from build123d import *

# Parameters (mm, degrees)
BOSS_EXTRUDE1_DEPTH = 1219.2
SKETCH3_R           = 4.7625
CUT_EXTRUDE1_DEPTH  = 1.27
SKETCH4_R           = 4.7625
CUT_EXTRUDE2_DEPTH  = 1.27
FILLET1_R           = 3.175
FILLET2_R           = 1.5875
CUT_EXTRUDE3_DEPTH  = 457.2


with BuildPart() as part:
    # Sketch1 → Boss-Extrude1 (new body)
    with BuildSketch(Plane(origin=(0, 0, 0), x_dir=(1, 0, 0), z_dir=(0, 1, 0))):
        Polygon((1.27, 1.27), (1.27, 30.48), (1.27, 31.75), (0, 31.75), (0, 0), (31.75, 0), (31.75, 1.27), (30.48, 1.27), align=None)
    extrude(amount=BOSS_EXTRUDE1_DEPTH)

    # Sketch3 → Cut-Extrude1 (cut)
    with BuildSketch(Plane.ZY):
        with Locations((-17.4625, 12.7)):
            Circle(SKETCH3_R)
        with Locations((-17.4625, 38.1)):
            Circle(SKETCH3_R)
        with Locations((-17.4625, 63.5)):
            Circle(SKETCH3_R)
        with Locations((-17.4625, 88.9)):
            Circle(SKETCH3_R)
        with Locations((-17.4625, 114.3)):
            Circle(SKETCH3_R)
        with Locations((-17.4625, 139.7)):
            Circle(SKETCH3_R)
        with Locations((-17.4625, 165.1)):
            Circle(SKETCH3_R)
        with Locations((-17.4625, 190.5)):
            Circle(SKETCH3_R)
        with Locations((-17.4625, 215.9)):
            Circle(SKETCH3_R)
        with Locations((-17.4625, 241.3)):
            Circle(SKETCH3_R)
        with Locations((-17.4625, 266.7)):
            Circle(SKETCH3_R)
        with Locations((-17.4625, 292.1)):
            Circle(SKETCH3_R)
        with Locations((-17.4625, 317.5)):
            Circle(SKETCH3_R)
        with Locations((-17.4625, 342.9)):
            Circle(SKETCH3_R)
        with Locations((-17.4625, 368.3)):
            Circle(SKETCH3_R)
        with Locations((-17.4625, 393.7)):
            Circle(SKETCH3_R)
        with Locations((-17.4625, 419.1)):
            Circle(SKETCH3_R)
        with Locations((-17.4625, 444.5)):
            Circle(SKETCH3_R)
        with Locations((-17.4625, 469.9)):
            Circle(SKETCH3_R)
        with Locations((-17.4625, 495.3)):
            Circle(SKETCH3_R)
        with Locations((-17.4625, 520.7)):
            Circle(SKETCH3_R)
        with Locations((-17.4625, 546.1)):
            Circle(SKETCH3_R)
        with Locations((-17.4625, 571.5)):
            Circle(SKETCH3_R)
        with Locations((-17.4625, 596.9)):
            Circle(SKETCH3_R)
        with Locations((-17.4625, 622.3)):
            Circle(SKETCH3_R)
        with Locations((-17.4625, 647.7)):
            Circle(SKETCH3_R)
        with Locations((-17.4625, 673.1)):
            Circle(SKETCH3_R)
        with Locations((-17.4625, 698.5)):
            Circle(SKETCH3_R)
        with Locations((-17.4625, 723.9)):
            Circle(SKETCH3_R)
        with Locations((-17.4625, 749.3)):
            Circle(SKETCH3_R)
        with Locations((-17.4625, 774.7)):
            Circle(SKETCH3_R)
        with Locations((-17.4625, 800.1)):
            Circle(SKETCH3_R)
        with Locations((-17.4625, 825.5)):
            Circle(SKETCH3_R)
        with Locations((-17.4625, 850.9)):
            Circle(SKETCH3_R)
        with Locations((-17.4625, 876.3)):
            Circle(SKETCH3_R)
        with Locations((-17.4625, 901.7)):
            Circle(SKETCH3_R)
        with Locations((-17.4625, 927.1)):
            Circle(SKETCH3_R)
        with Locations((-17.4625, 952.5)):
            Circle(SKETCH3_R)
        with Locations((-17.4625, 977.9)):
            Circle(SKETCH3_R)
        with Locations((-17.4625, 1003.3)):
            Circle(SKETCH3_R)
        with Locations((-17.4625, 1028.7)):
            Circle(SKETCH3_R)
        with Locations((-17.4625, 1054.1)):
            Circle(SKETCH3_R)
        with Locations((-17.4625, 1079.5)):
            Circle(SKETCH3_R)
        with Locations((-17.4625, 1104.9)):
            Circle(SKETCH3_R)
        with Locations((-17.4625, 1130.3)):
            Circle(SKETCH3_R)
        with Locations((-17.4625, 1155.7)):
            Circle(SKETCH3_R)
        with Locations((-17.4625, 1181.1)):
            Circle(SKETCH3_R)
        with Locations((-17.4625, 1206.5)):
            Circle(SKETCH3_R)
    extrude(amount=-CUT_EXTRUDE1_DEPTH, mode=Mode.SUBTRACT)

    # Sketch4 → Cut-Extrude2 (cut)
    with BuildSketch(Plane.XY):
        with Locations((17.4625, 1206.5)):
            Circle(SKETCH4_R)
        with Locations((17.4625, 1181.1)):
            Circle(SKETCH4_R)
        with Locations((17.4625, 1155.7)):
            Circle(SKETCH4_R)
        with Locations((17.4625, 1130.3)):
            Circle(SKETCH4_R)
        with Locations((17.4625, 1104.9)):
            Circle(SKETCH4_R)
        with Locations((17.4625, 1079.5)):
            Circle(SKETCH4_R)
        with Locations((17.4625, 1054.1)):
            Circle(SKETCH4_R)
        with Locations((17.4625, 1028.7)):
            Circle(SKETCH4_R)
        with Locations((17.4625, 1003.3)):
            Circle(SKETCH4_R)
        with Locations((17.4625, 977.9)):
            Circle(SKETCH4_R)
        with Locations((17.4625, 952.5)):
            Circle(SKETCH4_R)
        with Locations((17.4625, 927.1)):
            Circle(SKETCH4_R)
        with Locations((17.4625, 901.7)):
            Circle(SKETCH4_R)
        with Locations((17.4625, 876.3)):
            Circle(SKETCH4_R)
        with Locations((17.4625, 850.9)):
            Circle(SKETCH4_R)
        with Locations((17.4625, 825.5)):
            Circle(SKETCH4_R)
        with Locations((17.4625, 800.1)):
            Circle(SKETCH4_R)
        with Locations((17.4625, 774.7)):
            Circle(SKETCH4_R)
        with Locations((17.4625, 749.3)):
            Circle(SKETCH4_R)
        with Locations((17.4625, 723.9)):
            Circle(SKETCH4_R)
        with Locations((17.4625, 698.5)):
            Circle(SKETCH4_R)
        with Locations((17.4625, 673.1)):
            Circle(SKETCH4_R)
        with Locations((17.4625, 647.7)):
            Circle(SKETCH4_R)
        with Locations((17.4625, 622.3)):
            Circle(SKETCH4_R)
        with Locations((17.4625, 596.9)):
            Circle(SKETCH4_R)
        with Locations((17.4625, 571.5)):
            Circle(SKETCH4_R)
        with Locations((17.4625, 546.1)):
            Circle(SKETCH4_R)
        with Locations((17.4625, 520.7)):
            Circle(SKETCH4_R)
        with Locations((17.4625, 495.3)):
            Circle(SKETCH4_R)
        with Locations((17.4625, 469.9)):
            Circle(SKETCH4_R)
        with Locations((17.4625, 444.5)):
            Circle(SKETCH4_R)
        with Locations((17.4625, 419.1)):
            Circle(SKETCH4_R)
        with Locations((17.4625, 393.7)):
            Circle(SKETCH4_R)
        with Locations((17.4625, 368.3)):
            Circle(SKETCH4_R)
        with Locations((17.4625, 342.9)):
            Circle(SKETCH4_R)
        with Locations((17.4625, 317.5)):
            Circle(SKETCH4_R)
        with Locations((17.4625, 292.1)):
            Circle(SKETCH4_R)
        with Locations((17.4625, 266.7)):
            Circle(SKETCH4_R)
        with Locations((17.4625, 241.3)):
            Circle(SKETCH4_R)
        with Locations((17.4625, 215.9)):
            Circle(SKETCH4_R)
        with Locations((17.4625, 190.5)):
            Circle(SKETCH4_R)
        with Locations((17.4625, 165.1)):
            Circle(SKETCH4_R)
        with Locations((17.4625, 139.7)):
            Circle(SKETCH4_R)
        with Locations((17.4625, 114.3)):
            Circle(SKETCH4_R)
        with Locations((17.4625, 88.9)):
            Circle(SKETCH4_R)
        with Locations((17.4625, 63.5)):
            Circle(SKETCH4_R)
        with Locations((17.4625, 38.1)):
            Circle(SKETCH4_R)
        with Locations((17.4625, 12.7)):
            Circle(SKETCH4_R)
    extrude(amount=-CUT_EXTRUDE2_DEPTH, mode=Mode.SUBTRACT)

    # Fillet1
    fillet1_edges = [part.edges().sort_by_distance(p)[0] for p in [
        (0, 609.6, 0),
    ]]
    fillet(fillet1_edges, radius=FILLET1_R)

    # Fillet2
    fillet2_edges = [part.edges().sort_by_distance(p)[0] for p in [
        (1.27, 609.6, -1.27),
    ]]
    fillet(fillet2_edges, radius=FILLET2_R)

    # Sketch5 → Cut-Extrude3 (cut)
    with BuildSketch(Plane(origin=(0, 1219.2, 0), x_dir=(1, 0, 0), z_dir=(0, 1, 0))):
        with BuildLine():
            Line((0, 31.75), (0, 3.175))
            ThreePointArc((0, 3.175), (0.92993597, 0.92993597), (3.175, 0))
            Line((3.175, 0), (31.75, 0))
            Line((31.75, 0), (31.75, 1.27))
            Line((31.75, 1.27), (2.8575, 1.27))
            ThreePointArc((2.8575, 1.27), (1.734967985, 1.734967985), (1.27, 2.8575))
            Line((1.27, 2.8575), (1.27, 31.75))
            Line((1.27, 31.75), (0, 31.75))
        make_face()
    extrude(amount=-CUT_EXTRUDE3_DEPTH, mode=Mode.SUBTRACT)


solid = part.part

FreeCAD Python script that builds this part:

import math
import FreeCAD as App
import Part
import Sketcher

V = App.Vector
Q = App.Units.Quantity


def edges_at(feature, points):
    """Names of the edges that pass closest to the given points."""
    edges = feature.Shape.Edges
    near = lambda p: min(range(len(edges)), key=lambda i: edges[i].distToShape(Part.Vertex(*p))[0])
    return sorted({f"Edge{near(p) + 1}" for p in points})

doc = App.newDocument("Part")
body = doc.addObject("PartDesign::Body", "Body")

sketch1 = body.newObject("Sketcher::SketchObject", "Sketch")
sketch1.AttachmentSupport = (doc.getObject("XZ_Plane"), [""])
sketch1.MapMode = "FlatFace"
sketch1.addGeometry([
    Part.LineSegment(V(1.27, -1.27, 0), V(1.27, -31.75, 0)),
    Part.LineSegment(V(1.27, -31.75, 0), V(0, -31.75, 0)),
    Part.LineSegment(V(0, -31.75, 0), V(0, 0, 0)),
    Part.LineSegment(V(0, 0, 0), V(31.75, 0, 0)),
    Part.LineSegment(V(31.75, 0, 0), V(31.75, -1.27, 0)),
    Part.LineSegment(V(31.75, -1.27, 0), V(1.27, -1.27, 0)),
], False)
sketch1.addConstraint([
    Sketcher.Constraint("Coincident", 0, 2, 1, 1),
    Sketcher.Constraint("Coincident", 1, 2, 2, 1),
    Sketcher.Constraint("Coincident", 2, 2, 3, 1),
    Sketcher.Constraint("Coincident", 3, 2, 4, 1),
    Sketcher.Constraint("Coincident", 4, 2, 5, 1),
    Sketcher.Constraint("Coincident", 5, 2, 0, 1),
    Sketcher.Constraint("Vertical", 0),
    Sketcher.Constraint("Horizontal", 1),
    Sketcher.Constraint("Vertical", 2),
    Sketcher.Constraint("Horizontal", 3),
    Sketcher.Constraint("Vertical", 4),
    Sketcher.Constraint("Horizontal", 5),
    Sketcher.Constraint("Coincident", 2, 2, -1, 1),
    Sketcher.Constraint("Equal", 5, 0),
    Sketcher.Constraint("Equal", 3, 2),
    Sketcher.Constraint("DistanceX", 5, 2, 5, 1, Q("1.2 in")),
    Sketcher.Constraint("DistanceX", 1, 2, 1, 1, Q("0.05 in")),
])
pad1 = body.newObject("PartDesign::Pad", "Pad")
pad1.Profile = sketch1
pad1.Length = Q("48 in")
pad1.Reversed = True

sketch2 = body.newObject("Sketcher::SketchObject", "Sketch001")
sketch2.AttachmentSupport = (doc.getObject("YZ_Plane"), [""])
sketch2.MapMode = "FlatFace"
sketch2.addGeometry([
    Part.Circle(V(12.7, -17.4625, 0), V(0, 0, 1), 4.7625),
    Part.Circle(V(38.1, -17.4625, 0), V(0, 0, 1), 4.7625),
    Part.Circle(V(63.5, -17.4625, 0), V(0, 0, 1), 4.7625),
    Part.Circle(V(88.9, -17.4625, 0), V(0, 0, 1), 4.7625),
    Part.Circle(V(114.3, -17.4625, 0), V(0, 0, 1), 4.7625),
    Part.Circle(V(139.7, -17.4625, 0), V(0, 0, 1), 4.7625),
    Part.Circle(V(165.1, -17.4625, 0), V(0, 0, 1), 4.7625),
    Part.Circle(V(190.5, -17.4625, 0), V(0, 0, 1), 4.7625),
    Part.Circle(V(215.9, -17.4625, 0), V(0, 0, 1), 4.7625),
    Part.Circle(V(241.3, -17.4625, 0), V(0, 0, 1), 4.7625),
    Part.Circle(V(266.7, -17.4625, 0), V(0, 0, 1), 4.7625),
    Part.Circle(V(292.1, -17.4625, 0), V(0, 0, 1), 4.7625),
    Part.Circle(V(317.5, -17.4625, 0), V(0, 0, 1), 4.7625),
    Part.Circle(V(342.9, -17.4625, 0), V(0, 0, 1), 4.7625),
    Part.Circle(V(368.3, -17.4625, 0), V(0, 0, 1), 4.7625),
    Part.Circle(V(393.7, -17.4625, 0), V(0, 0, 1), 4.7625),
    Part.Circle(V(419.1, -17.4625, 0), V(0, 0, 1), 4.7625),
    Part.Circle(V(444.5, -17.4625, 0), V(0, 0, 1), 4.7625),
    Part.Circle(V(469.9, -17.4625, 0), V(0, 0, 1), 4.7625),
    Part.Circle(V(495.3, -17.4625, 0), V(0, 0, 1), 4.7625),
    Part.Circle(V(520.7, -17.4625, 0), V(0, 0, 1), 4.7625),
    Part.Circle(V(546.1, -17.4625, 0), V(0, 0, 1), 4.7625),
    Part.Circle(V(571.5, -17.4625, 0), V(0, 0, 1), 4.7625),
    Part.Circle(V(596.9, -17.4625, 0), V(0, 0, 1), 4.7625),
    Part.Circle(V(622.3, -17.4625, 0), V(0, 0, 1), 4.7625),
    Part.Circle(V(647.7, -17.4625, 0), V(0, 0, 1), 4.7625),
    Part.Circle(V(673.1, -17.4625, 0), V(0, 0, 1), 4.7625),
    Part.Circle(V(698.5, -17.4625, 0), V(0, 0, 1), 4.7625),
    Part.Circle(V(723.9, -17.4625, 0), V(0, 0, 1), 4.7625),
    Part.Circle(V(749.3, -17.4625, 0), V(0, 0, 1), 4.7625),
    Part.Circle(V(774.7, -17.4625, 0), V(0, 0, 1), 4.7625),
    Part.Circle(V(800.1, -17.4625, 0), V(0, 0, 1), 4.7625),
    Part.Circle(V(825.5, -17.4625, 0), V(0, 0, 1), 4.7625),
    Part.Circle(V(850.9, -17.4625, 0), V(0, 0, 1), 4.7625),
    Part.Circle(V(876.3, -17.4625, 0), V(0, 0, 1), 4.7625),
    Part.Circle(V(901.7, -17.4625, 0), V(0, 0, 1), 4.7625),
    Part.Circle(V(927.1, -17.4625, 0), V(0, 0, 1), 4.7625),
    Part.Circle(V(952.5, -17.4625, 0), V(0, 0, 1), 4.7625),
    Part.Circle(V(977.9, -17.4625, 0), V(0, 0, 1), 4.7625),
    Part.Circle(V(1003.3, -17.4625, 0), V(0, 0, 1), 4.7625),
    Part.Circle(V(1028.7, -17.4625, 0), V(0, 0, 1), 4.7625),
    Part.Circle(V(1054.1, -17.4625, 0), V(0, 0, 1), 4.7625),
    Part.Circle(V(1079.5, -17.4625, 0), V(0, 0, 1), 4.7625),
    Part.Circle(V(1104.9, -17.4625, 0), V(0, 0, 1), 4.7625),
    Part.Circle(V(1130.3, -17.4625, 0), V(0, 0, 1), 4.7625),
    Part.Circle(V(1155.7, -17.4625, 0), V(0, 0, 1), 4.7625),
    Part.Circle(V(1181.1, -17.4625, 0), V(0, 0, 1), 4.7625),
    Part.Circle(V(1206.5, -17.4625, 0), V(0, 0, 1), 4.7625),
], False)
sketch2.addConstraint([
    Sketcher.Constraint("Equal", 0, 1),
    Sketcher.Constraint("Equal", 1, 2),
    Sketcher.Constraint("Equal", 2, 3),
    Sketcher.Constraint("Equal", 3, 4),
    Sketcher.Constraint("Equal", 4, 5),
    Sketcher.Constraint("Equal", 5, 6),
    Sketcher.Constraint("Equal", 6, 7),
    Sketcher.Constraint("Equal", 7, 8),
    Sketcher.Constraint("Equal", 8, 9),
    Sketcher.Constraint("Equal", 9, 10),
    Sketcher.Constraint("Equal", 10, 11),
    Sketcher.Constraint("Equal", 11, 12),
    Sketcher.Constraint("Equal", 12, 13),
    Sketcher.Constraint("Equal", 13, 14),
    Sketcher.Constraint("Equal", 14, 15),
    Sketcher.Constraint("Equal", 15, 16),
    Sketcher.Constraint("Equal", 16, 17),
    Sketcher.Constraint("Equal", 17, 18),
    Sketcher.Constraint("Equal", 18, 19),
    Sketcher.Constraint("Equal", 19, 20),
    Sketcher.Constraint("Equal", 20, 21),
    Sketcher.Constraint("Equal", 21, 22),
    Sketcher.Constraint("Equal", 22, 23),
    Sketcher.Constraint("Equal", 23, 24),
    Sketcher.Constraint("Equal", 24, 25),
    Sketcher.Constraint("Equal", 25, 26),
    Sketcher.Constraint("Equal", 26, 27),
    Sketcher.Constraint("Equal", 27, 28),
    Sketcher.Constraint("Equal", 28, 29),
    Sketcher.Constraint("Equal", 29, 30),
    Sketcher.Constraint("Equal", 30, 31),
    Sketcher.Constraint("Equal", 31, 32),
    Sketcher.Constraint("Equal", 32, 33),
    Sketcher.Constraint("Equal", 33, 34),
    Sketcher.Constraint("Equal", 34, 35),
    Sketcher.Constraint("Equal", 35, 36),
    Sketcher.Constraint("Equal", 36, 37),
    Sketcher.Constraint("Equal", 37, 38),
    Sketcher.Constraint("Equal", 38, 39),
    Sketcher.Constraint("Equal", 39, 40),
    Sketcher.Constraint("Equal", 40, 41),
    Sketcher.Constraint("Equal", 41, 42),
    Sketcher.Constraint("Equal", 42, 43),
    Sketcher.Constraint("Equal", 43, 44),
    Sketcher.Constraint("Equal", 44, 45),
    Sketcher.Constraint("Equal", 45, 46),
    Sketcher.Constraint("Equal", 46, 47),
    Sketcher.Constraint("Horizontal", 0, 3, 1, 3),
    Sketcher.Constraint("Horizontal", 1, 3, 2, 3),
    Sketcher.Constraint("Horizontal", 2, 3, 3, 3),
    Sketcher.Constraint("Horizontal", 3, 3, 4, 3),
    Sketcher.Constraint("Horizontal", 4, 3, 5, 3),
    Sketcher.Constraint("Horizontal", 5, 3, 6, 3),
    Sketcher.Constraint("Horizontal", 6, 3, 7, 3),
    Sketcher.Constraint("Horizontal", 7, 3, 8, 3),
    Sketcher.Constraint("Horizontal", 8, 3, 9, 3),
    Sketcher.Constraint("Horizontal", 9, 3, 10, 3),
    Sketcher.Constraint("Horizontal", 10, 3, 11, 3),
    Sketcher.Constraint("Horizontal", 11, 3, 12, 3),
    Sketcher.Constraint("Horizontal", 12, 3, 13, 3),
    Sketcher.Constraint("Horizontal", 13, 3, 14, 3),
    Sketcher.Constraint("Horizontal", 14, 3, 15, 3),
    Sketcher.Constraint("Horizontal", 15, 3, 16, 3),
    Sketcher.Constraint("Horizontal", 16, 3, 17, 3),
    Sketcher.Constraint("Horizontal", 17, 3, 18, 3),
    Sketcher.Constraint("Horizontal", 18, 3, 19, 3),
    Sketcher.Constraint("Horizontal", 19, 3, 20, 3),
    Sketcher.Constraint("Horizontal", 20, 3, 21, 3),
    Sketcher.Constraint("Horizontal", 21, 3, 22, 3),
    Sketcher.Constraint("Horizontal", 22, 3, 23, 3),
    Sketcher.Constraint("Horizontal", 23, 3, 24, 3),
    Sketcher.Constraint("Horizontal", 24, 3, 25, 3),
    Sketcher.Constraint("Horizontal", 25, 3, 26, 3),
    Sketcher.Constraint("Horizontal", 26, 3, 27, 3),
    Sketcher.Constraint("Horizontal", 27, 3, 28, 3),
    Sketcher.Constraint("Horizontal", 28, 3, 29, 3),
    Sketcher.Constraint("Horizontal", 29, 3, 30, 3),
    Sketcher.Constraint("Horizontal", 30, 3, 31, 3),
    Sketcher.Constraint("Horizontal", 31, 3, 32, 3),
    Sketcher.Constraint("Horizontal", 32, 3, 33, 3),
    Sketcher.Constraint("Horizontal", 33, 3, 34, 3),
    Sketcher.Constraint("Horizontal", 34, 3, 35, 3),
    Sketcher.Constraint("Horizontal", 35, 3, 36, 3),
    Sketcher.Constraint("Horizontal", 36, 3, 37, 3),
    Sketcher.Constraint("Horizontal", 37, 3, 38, 3),
    Sketcher.Constraint("Horizontal", 38, 3, 39, 3),
    Sketcher.Constraint("Horizontal", 39, 3, 40, 3),
    Sketcher.Constraint("Horizontal", 40, 3, 41, 3),
    Sketcher.Constraint("Horizontal", 41, 3, 42, 3),
    Sketcher.Constraint("Horizontal", 42, 3, 43, 3),
    Sketcher.Constraint("Horizontal", 43, 3, 44, 3),
    Sketcher.Constraint("Horizontal", 44, 3, 45, 3),
    Sketcher.Constraint("Horizontal", 45, 3, 46, 3),
    Sketcher.Constraint("Horizontal", 46, 3, 47, 3),
    Sketcher.Constraint("Diameter", 0, Q("0.375 in")),
    Sketcher.Constraint("DistanceX", 0, 3, 1, 3, Q("1 in")),
    Sketcher.Constraint("DistanceX", 1, 3, 2, 3, Q("1 in")),
    Sketcher.Constraint("DistanceX", 2, 3, 3, 3, Q("1 in")),
    Sketcher.Constraint("DistanceX", 3, 3, 4, 3, Q("1 in")),
    Sketcher.Constraint("DistanceX", 4, 3, 5, 3, Q("1 in")),
    Sketcher.Constraint("DistanceX", 5, 3, 6, 3, Q("1 in")),
    Sketcher.Constraint("DistanceX", 6, 3, 7, 3, Q("1 in")),
    Sketcher.Constraint("DistanceX", 7, 3, 8, 3, Q("1 in")),
    Sketcher.Constraint("DistanceX", 8, 3, 9, 3, Q("1 in")),
    Sketcher.Constraint("DistanceX", 9, 3, 10, 3, Q("1 in")),
    Sketcher.Constraint("DistanceX", 10, 3, 11, 3, Q("1 in")),
    Sketcher.Constraint("DistanceX", 11, 3, 12, 3, Q("1 in")),
    Sketcher.Constraint("DistanceX", 12, 3, 13, 3, Q("1 in")),
    Sketcher.Constraint("DistanceX", 13, 3, 14, 3, Q("1 in")),
    Sketcher.Constraint("DistanceX", 14, 3, 15, 3, Q("1 in")),
    Sketcher.Constraint("DistanceX", 15, 3, 16, 3, Q("1 in")),
    Sketcher.Constraint("DistanceX", 16, 3, 17, 3, Q("1 in")),
    Sketcher.Constraint("DistanceX", 17, 3, 18, 3, Q("1 in")),
    Sketcher.Constraint("DistanceX", 18, 3, 19, 3, Q("1 in")),
    Sketcher.Constraint("DistanceX", 19, 3, 20, 3, Q("1 in")),
    Sketcher.Constraint("DistanceX", 20, 3, 21, 3, Q("1 in")),
    Sketcher.Constraint("DistanceX", 21, 3, 22, 3, Q("1 in")),
    Sketcher.Constraint("DistanceX", 22, 3, 23, 3, Q("1 in")),
    Sketcher.Constraint("DistanceX", 23, 3, 24, 3, Q("1 in")),
    Sketcher.Constraint("DistanceX", 24, 3, 25, 3, Q("1 in")),
    Sketcher.Constraint("DistanceX", 25, 3, 26, 3, Q("1 in")),
    Sketcher.Constraint("DistanceX", 26, 3, 27, 3, Q("1 in")),
    Sketcher.Constraint("DistanceX", 27, 3, 28, 3, Q("1 in")),
    Sketcher.Constraint("DistanceX", 28, 3, 29, 3, Q("1 in")),
    Sketcher.Constraint("DistanceX", 29, 3, 30, 3, Q("1 in")),
    Sketcher.Constraint("DistanceX", 30, 3, 31, 3, Q("1 in")),
    Sketcher.Constraint("DistanceX", 31, 3, 32, 3, Q("1 in")),
    Sketcher.Constraint("DistanceX", 32, 3, 33, 3, Q("1 in")),
    Sketcher.Constraint("DistanceX", 33, 3, 34, 3, Q("1 in")),
    Sketcher.Constraint("DistanceX", 34, 3, 35, 3, Q("1 in")),
    Sketcher.Constraint("DistanceX", 35, 3, 36, 3, Q("1 in")),
    Sketcher.Constraint("DistanceX", 36, 3, 37, 3, Q("1 in")),
    Sketcher.Constraint("DistanceX", 37, 3, 38, 3, Q("1 in")),
    Sketcher.Constraint("DistanceX", 38, 3, 39, 3, Q("1 in")),
    Sketcher.Constraint("DistanceX", 39, 3, 40, 3, Q("1 in")),
    Sketcher.Constraint("DistanceX", 40, 3, 41, 3, Q("1 in")),
    Sketcher.Constraint("DistanceX", 41, 3, 42, 3, Q("1 in")),
    Sketcher.Constraint("DistanceX", 42, 3, 43, 3, Q("1 in")),
    Sketcher.Constraint("DistanceX", 43, 3, 44, 3, Q("1 in")),
    Sketcher.Constraint("DistanceX", 44, 3, 45, 3, Q("1 in")),
    Sketcher.Constraint("DistanceX", 45, 3, 46, 3, Q("1 in")),
    Sketcher.Constraint("DistanceX", 46, 3, 47, 3, Q("1 in")),
    Sketcher.Constraint("DistanceX", -1, 1, 0, 3, Q("0.5 in")),
    Sketcher.Constraint("DistanceY", 0, 3, -1, 1, Q("0.6875 in")),
])
pocket1 = body.newObject("PartDesign::Pocket", "Pocket")
pocket1.Profile = sketch2
pocket1.Length = Q("0.05 in")
pocket1.Reversed = True

sketch3 = body.newObject("Sketcher::SketchObject", "Sketch002")
sketch3.AttachmentSupport = (doc.getObject("XY_Plane"), [""])
sketch3.MapMode = "FlatFace"
sketch3.addGeometry([
    Part.Circle(V(17.4625, 1206.5, 0), V(0, 0, 1), 4.7625),
    Part.Circle(V(17.4625, 1181.1, 0), V(0, 0, 1), 4.7625),
    Part.Circle(V(17.4625, 1155.7, 0), V(0, 0, 1), 4.7625),
    Part.Circle(V(17.4625, 1130.3, 0), V(0, 0, 1), 4.7625),
    Part.Circle(V(17.4625, 1104.9, 0), V(0, 0, 1), 4.7625),
    Part.Circle(V(17.4625, 1079.5, 0), V(0, 0, 1), 4.7625),
    Part.Circle(V(17.4625, 1054.1, 0), V(0, 0, 1), 4.7625),
    Part.Circle(V(17.4625, 1028.7, 0), V(0, 0, 1), 4.7625),
    Part.Circle(V(17.4625, 1003.3, 0), V(0, 0, 1), 4.7625),
    Part.Circle(V(17.4625, 977.9, 0), V(0, 0, 1), 4.7625),
    Part.Circle(V(17.4625, 952.5, 0), V(0, 0, 1), 4.7625),
    Part.Circle(V(17.4625, 927.1, 0), V(0, 0, 1), 4.7625),
    Part.Circle(V(17.4625, 901.7, 0), V(0, 0, 1), 4.7625),
    Part.Circle(V(17.4625, 876.3, 0), V(0, 0, 1), 4.7625),
    Part.Circle(V(17.4625, 850.9, 0), V(0, 0, 1), 4.7625),
    Part.Circle(V(17.4625, 825.5, 0), V(0, 0, 1), 4.7625),
    Part.Circle(V(17.4625, 800.1, 0), V(0, 0, 1), 4.7625),
    Part.Circle(V(17.4625, 774.7, 0), V(0, 0, 1), 4.7625),
    Part.Circle(V(17.4625, 749.3, 0), V(0, 0, 1), 4.7625),
    Part.Circle(V(17.4625, 723.9, 0), V(0, 0, 1), 4.7625),
    Part.Circle(V(17.4625, 698.5, 0), V(0, 0, 1), 4.7625),
    Part.Circle(V(17.4625, 673.1, 0), V(0, 0, 1), 4.7625),
    Part.Circle(V(17.4625, 647.7, 0), V(0, 0, 1), 4.7625),
    Part.Circle(V(17.4625, 622.3, 0), V(0, 0, 1), 4.7625),
    Part.Circle(V(17.4625, 596.9, 0), V(0, 0, 1), 4.7625),
    Part.Circle(V(17.4625, 571.5, 0), V(0, 0, 1), 4.7625),
    Part.Circle(V(17.4625, 546.1, 0), V(0, 0, 1), 4.7625),
    Part.Circle(V(17.4625, 520.7, 0), V(0, 0, 1), 4.7625),
    Part.Circle(V(17.4625, 495.3, 0), V(0, 0, 1), 4.7625),
    Part.Circle(V(17.4625, 469.9, 0), V(0, 0, 1), 4.7625),
    Part.Circle(V(17.4625, 444.5, 0), V(0, 0, 1), 4.7625),
    Part.Circle(V(17.4625, 419.1, 0), V(0, 0, 1), 4.7625),
    Part.Circle(V(17.4625, 393.7, 0), V(0, 0, 1), 4.7625),
    Part.Circle(V(17.4625, 368.3, 0), V(0, 0, 1), 4.7625),
    Part.Circle(V(17.4625, 342.9, 0), V(0, 0, 1), 4.7625),
    Part.Circle(V(17.4625, 317.5, 0), V(0, 0, 1), 4.7625),
    Part.Circle(V(17.4625, 292.1, 0), V(0, 0, 1), 4.7625),
    Part.Circle(V(17.4625, 266.7, 0), V(0, 0, 1), 4.7625),
    Part.Circle(V(17.4625, 241.3, 0), V(0, 0, 1), 4.7625),
    Part.Circle(V(17.4625, 215.9, 0), V(0, 0, 1), 4.7625),
    Part.Circle(V(17.4625, 190.5, 0), V(0, 0, 1), 4.7625),
    Part.Circle(V(17.4625, 165.1, 0), V(0, 0, 1), 4.7625),
    Part.Circle(V(17.4625, 139.7, 0), V(0, 0, 1), 4.7625),
    Part.Circle(V(17.4625, 114.3, 0), V(0, 0, 1), 4.7625),
    Part.Circle(V(17.4625, 88.9, 0), V(0, 0, 1), 4.7625),
    Part.Circle(V(17.4625, 63.5, 0), V(0, 0, 1), 4.7625),
    Part.Circle(V(17.4625, 38.1, 0), V(0, 0, 1), 4.7625),
    Part.Circle(V(17.4625, 12.7, 0), V(0, 0, 1), 4.7625),
], False)
sketch3.addConstraint([
    Sketcher.Constraint("Equal", 0, 1),
    Sketcher.Constraint("Equal", 1, 2),
    Sketcher.Constraint("Equal", 2, 3),
    Sketcher.Constraint("Equal", 3, 4),
    Sketcher.Constraint("Equal", 4, 5),
    Sketcher.Constraint("Equal", 5, 6),
    Sketcher.Constraint("Equal", 6, 7),
    Sketcher.Constraint("Equal", 7, 8),
    Sketcher.Constraint("Equal", 8, 9),
    Sketcher.Constraint("Equal", 9, 10),
    Sketcher.Constraint("Equal", 10, 11),
    Sketcher.Constraint("Equal", 11, 12),
    Sketcher.Constraint("Equal", 12, 13),
    Sketcher.Constraint("Equal", 13, 14),
    Sketcher.Constraint("Equal", 14, 15),
    Sketcher.Constraint("Equal", 15, 16),
    Sketcher.Constraint("Equal", 16, 17),
    Sketcher.Constraint("Equal", 17, 18),
    Sketcher.Constraint("Equal", 18, 19),
    Sketcher.Constraint("Equal", 19, 20),
    Sketcher.Constraint("Equal", 20, 21),
    Sketcher.Constraint("Equal", 21, 22),
    Sketcher.Constraint("Equal", 22, 23),
    Sketcher.Constraint("Equal", 23, 24),
    Sketcher.Constraint("Equal", 24, 25),
    Sketcher.Constraint("Equal", 25, 26),
    Sketcher.Constraint("Equal", 26, 27),
    Sketcher.Constraint("Equal", 27, 28),
    Sketcher.Constraint("Equal", 28, 29),
    Sketcher.Constraint("Equal", 29, 30),
    Sketcher.Constraint("Equal", 30, 31),
    Sketcher.Constraint("Equal", 31, 32),
    Sketcher.Constraint("Equal", 32, 33),
    Sketcher.Constraint("Equal", 33, 34),
    Sketcher.Constraint("Equal", 34, 35),
    Sketcher.Constraint("Equal", 35, 36),
    Sketcher.Constraint("Equal", 36, 37),
    Sketcher.Constraint("Equal", 37, 38),
    Sketcher.Constraint("Equal", 38, 39),
    Sketcher.Constraint("Equal", 39, 40),
    Sketcher.Constraint("Equal", 40, 41),
    Sketcher.Constraint("Equal", 41, 42),
    Sketcher.Constraint("Equal", 42, 43),
    Sketcher.Constraint("Equal", 43, 44),
    Sketcher.Constraint("Equal", 44, 45),
    Sketcher.Constraint("Equal", 45, 46),
    Sketcher.Constraint("Equal", 46, 47),
    Sketcher.Constraint("Vertical", 0, 3, 1, 3),
    Sketcher.Constraint("Vertical", 1, 3, 2, 3),
    Sketcher.Constraint("Vertical", 2, 3, 3, 3),
    Sketcher.Constraint("Vertical", 3, 3, 4, 3),
    Sketcher.Constraint("Vertical", 4, 3, 5, 3),
    Sketcher.Constraint("Vertical", 5, 3, 6, 3),
    Sketcher.Constraint("Vertical", 6, 3, 7, 3),
    Sketcher.Constraint("Vertical", 7, 3, 8, 3),
    Sketcher.Constraint("Vertical", 8, 3, 9, 3),
    Sketcher.Constraint("Vertical", 9, 3, 10, 3),
    Sketcher.Constraint("Vertical", 10, 3, 11, 3),
    Sketcher.Constraint("Vertical", 11, 3, 12, 3),
    Sketcher.Constraint("Vertical", 12, 3, 13, 3),
    Sketcher.Constraint("Vertical", 13, 3, 14, 3),
    Sketcher.Constraint("Vertical", 14, 3, 15, 3),
    Sketcher.Constraint("Vertical", 15, 3, 16, 3),
    Sketcher.Constraint("Vertical", 16, 3, 17, 3),
    Sketcher.Constraint("Vertical", 17, 3, 18, 3),
    Sketcher.Constraint("Vertical", 18, 3, 19, 3),
    Sketcher.Constraint("Vertical", 19, 3, 20, 3),
    Sketcher.Constraint("Vertical", 20, 3, 21, 3),
    Sketcher.Constraint("Vertical", 21, 3, 22, 3),
    Sketcher.Constraint("Vertical", 22, 3, 23, 3),
    Sketcher.Constraint("Vertical", 23, 3, 24, 3),
    Sketcher.Constraint("Vertical", 24, 3, 25, 3),
    Sketcher.Constraint("Vertical", 25, 3, 26, 3),
    Sketcher.Constraint("Vertical", 26, 3, 27, 3),
    Sketcher.Constraint("Vertical", 27, 3, 28, 3),
    Sketcher.Constraint("Vertical", 28, 3, 29, 3),
    Sketcher.Constraint("Vertical", 29, 3, 30, 3),
    Sketcher.Constraint("Vertical", 30, 3, 31, 3),
    Sketcher.Constraint("Vertical", 31, 3, 32, 3),
    Sketcher.Constraint("Vertical", 32, 3, 33, 3),
    Sketcher.Constraint("Vertical", 33, 3, 34, 3),
    Sketcher.Constraint("Vertical", 34, 3, 35, 3),
    Sketcher.Constraint("Vertical", 35, 3, 36, 3),
    Sketcher.Constraint("Vertical", 36, 3, 37, 3),
    Sketcher.Constraint("Vertical", 37, 3, 38, 3),
    Sketcher.Constraint("Vertical", 38, 3, 39, 3),
    Sketcher.Constraint("Vertical", 39, 3, 40, 3),
    Sketcher.Constraint("Vertical", 40, 3, 41, 3),
    Sketcher.Constraint("Vertical", 41, 3, 42, 3),
    Sketcher.Constraint("Vertical", 42, 3, 43, 3),
    Sketcher.Constraint("Vertical", 43, 3, 44, 3),
    Sketcher.Constraint("Vertical", 44, 3, 45, 3),
    Sketcher.Constraint("Vertical", 45, 3, 46, 3),
    Sketcher.Constraint("Vertical", 46, 3, 47, 3),
    Sketcher.Constraint("Diameter", 0, Q("0.375 in")),
    Sketcher.Constraint("DistanceY", 1, 3, 0, 3, Q("1 in")),
    Sketcher.Constraint("DistanceY", 2, 3, 1, 3, Q("1 in")),
    Sketcher.Constraint("DistanceY", 3, 3, 2, 3, Q("1 in")),
    Sketcher.Constraint("DistanceY", 4, 3, 3, 3, Q("1 in")),
    Sketcher.Constraint("DistanceY", 5, 3, 4, 3, Q("1 in")),
    Sketcher.Constraint("DistanceY", 6, 3, 5, 3, Q("1 in")),
    Sketcher.Constraint("DistanceY", 7, 3, 6, 3, Q("1 in")),
    Sketcher.Constraint("DistanceY", 8, 3, 7, 3, Q("1 in")),
    Sketcher.Constraint("DistanceY", 9, 3, 8, 3, Q("1 in")),
    Sketcher.Constraint("DistanceY", 10, 3, 9, 3, Q("1 in")),
    Sketcher.Constraint("DistanceY", 11, 3, 10, 3, Q("1 in")),
    Sketcher.Constraint("DistanceY", 12, 3, 11, 3, Q("1 in")),
    Sketcher.Constraint("DistanceY", 13, 3, 12, 3, Q("1 in")),
    Sketcher.Constraint("DistanceY", 14, 3, 13, 3, Q("1 in")),
    Sketcher.Constraint("DistanceY", 15, 3, 14, 3, Q("1 in")),
    Sketcher.Constraint("DistanceY", 16, 3, 15, 3, Q("1 in")),
    Sketcher.Constraint("DistanceY", 17, 3, 16, 3, Q("1 in")),
    Sketcher.Constraint("DistanceY", 18, 3, 17, 3, Q("1 in")),
    Sketcher.Constraint("DistanceY", 19, 3, 18, 3, Q("1 in")),
    Sketcher.Constraint("DistanceY", 20, 3, 19, 3, Q("1 in")),
    Sketcher.Constraint("DistanceY", 21, 3, 20, 3, Q("1 in")),
    Sketcher.Constraint("DistanceY", 22, 3, 21, 3, Q("1 in")),
    Sketcher.Constraint("DistanceY", 23, 3, 22, 3, Q("1 in")),
    Sketcher.Constraint("DistanceY", 24, 3, 23, 3, Q("1 in")),
    Sketcher.Constraint("DistanceY", 25, 3, 24, 3, Q("1 in")),
    Sketcher.Constraint("DistanceY", 26, 3, 25, 3, Q("1 in")),
    Sketcher.Constraint("DistanceY", 27, 3, 26, 3, Q("1 in")),
    Sketcher.Constraint("DistanceY", 28, 3, 27, 3, Q("1 in")),
    Sketcher.Constraint("DistanceY", 29, 3, 28, 3, Q("1 in")),
    Sketcher.Constraint("DistanceY", 30, 3, 29, 3, Q("1 in")),
    Sketcher.Constraint("DistanceY", 31, 3, 30, 3, Q("1 in")),
    Sketcher.Constraint("DistanceY", 32, 3, 31, 3, Q("1 in")),
    Sketcher.Constraint("DistanceY", 33, 3, 32, 3, Q("1 in")),
    Sketcher.Constraint("DistanceY", 34, 3, 33, 3, Q("1 in")),
    Sketcher.Constraint("DistanceY", 35, 3, 34, 3, Q("1 in")),
    Sketcher.Constraint("DistanceY", 36, 3, 35, 3, Q("1 in")),
    Sketcher.Constraint("DistanceY", 37, 3, 36, 3, Q("1 in")),
    Sketcher.Constraint("DistanceY", 38, 3, 37, 3, Q("1 in")),
    Sketcher.Constraint("DistanceY", 39, 3, 38, 3, Q("1 in")),
    Sketcher.Constraint("DistanceY", 40, 3, 39, 3, Q("1 in")),
    Sketcher.Constraint("DistanceY", 41, 3, 40, 3, Q("1 in")),
    Sketcher.Constraint("DistanceY", 42, 3, 41, 3, Q("1 in")),
    Sketcher.Constraint("DistanceY", 43, 3, 42, 3, Q("1 in")),
    Sketcher.Constraint("DistanceY", 44, 3, 43, 3, Q("1 in")),
    Sketcher.Constraint("DistanceY", 45, 3, 44, 3, Q("1 in")),
    Sketcher.Constraint("DistanceY", 46, 3, 45, 3, Q("1 in")),
    Sketcher.Constraint("DistanceY", 47, 3, 46, 3, Q("1 in")),
    Sketcher.Constraint("DistanceY", -1, 1, 0, 3, Q("47.5 in")),
    Sketcher.Constraint("DistanceX", -1, 1, 0, 3, Q("0.6875 in")),
])
pocket2 = body.newObject("PartDesign::Pocket", "Pocket001")
pocket2.Profile = sketch3
pocket2.Length = Q("0.05 in")
doc.recompute()

fillet = body.newObject("PartDesign::Fillet", "Fillet")
fillet.Base = (pocket2, edges_at(pocket2, [(0, 609.6, 0)]))
fillet.Radius = Q("0.125 in")
doc.recompute()

fillet2 = body.newObject("PartDesign::Fillet", "Fillet001")
fillet2.Base = (fillet, edges_at(fillet, [(1.27, 609.6, -1.27)]))
fillet2.Radius = Q("0.0625 in")

sketch4 = body.newObject("Sketcher::SketchObject", "Sketch003")
sketch4.AttachmentSupport = (doc.getObject("XZ_Plane"), [""])
sketch4.MapMode = "FlatFace"
sketch4.AttachmentOffset = App.Placement(V(0, 0, -48 * 25.4), App.Rotation())
sketch4.addGeometry([
    Part.LineSegment(V(0, -31.75, 0), V(0, -3.175, 0)),
    Part.ArcOfCircle(Part.Circle(V(3.175, -3.175, 0), V(0, 0, 1), 3.175), math.radians(90), math.radians(180)),
    Part.LineSegment(V(3.175, 0, 0), V(31.75, 0, 0)),
    Part.LineSegment(V(31.75, 0, 0), V(31.75, -1.27, 0)),
    Part.LineSegment(V(31.75, -1.27, 0), V(2.8575, -1.27, 0)),
    Part.ArcOfCircle(Part.Circle(V(2.8575, -2.8575, 0), V(0, 0, 1), 1.5875), math.radians(90), math.radians(180)),
    Part.LineSegment(V(1.27, -2.8575, 0), V(1.27, -31.75, 0)),
    Part.LineSegment(V(1.27, -31.75, 0), V(0, -31.75, 0)),
], False)
sketch4.addConstraint([
    Sketcher.Constraint("Tangent", 0, 2, 1, 2),
    Sketcher.Constraint("Tangent", 1, 1, 2, 1),
    Sketcher.Constraint("Coincident", 2, 2, 3, 1),
    Sketcher.Constraint("Coincident", 3, 2, 4, 1),
    Sketcher.Constraint("Tangent", 4, 2, 5, 1),
    Sketcher.Constraint("Tangent", 5, 2, 6, 1),
    Sketcher.Constraint("Coincident", 6, 2, 7, 1),
    Sketcher.Constraint("Coincident", 7, 2, 0, 1),
    Sketcher.Constraint("Vertical", 0),
    Sketcher.Constraint("Horizontal", 2),
    Sketcher.Constraint("Vertical", 3),
    Sketcher.Constraint("Horizontal", 4),
    Sketcher.Constraint("Vertical", 6),
    Sketcher.Constraint("Horizontal", 7),
    Sketcher.Constraint("PointOnObject", 0, 2, -2),
    Sketcher.Constraint("PointOnObject", 1, 1, -1),
    Sketcher.Constraint("Equal", 2, 0),
    Sketcher.Constraint("Equal", 7, 3),
    Sketcher.Constraint("Radius", 1, Q("0.125 in")),
    Sketcher.Constraint("Radius", 5, Q("0.0625 in")),
    Sketcher.Constraint("DistanceX", 7, 2, 7, 1, Q("0.05 in")),
    Sketcher.Constraint("DistanceY", 6, 2, 4, 2, Q("1.2 in")),
])
pocket3 = body.newObject("PartDesign::Pocket", "Pocket002")
pocket3.Profile = sketch4
pocket3.Length = Q("18 in")
pocket3.Reversed = True

doc.recompute()
